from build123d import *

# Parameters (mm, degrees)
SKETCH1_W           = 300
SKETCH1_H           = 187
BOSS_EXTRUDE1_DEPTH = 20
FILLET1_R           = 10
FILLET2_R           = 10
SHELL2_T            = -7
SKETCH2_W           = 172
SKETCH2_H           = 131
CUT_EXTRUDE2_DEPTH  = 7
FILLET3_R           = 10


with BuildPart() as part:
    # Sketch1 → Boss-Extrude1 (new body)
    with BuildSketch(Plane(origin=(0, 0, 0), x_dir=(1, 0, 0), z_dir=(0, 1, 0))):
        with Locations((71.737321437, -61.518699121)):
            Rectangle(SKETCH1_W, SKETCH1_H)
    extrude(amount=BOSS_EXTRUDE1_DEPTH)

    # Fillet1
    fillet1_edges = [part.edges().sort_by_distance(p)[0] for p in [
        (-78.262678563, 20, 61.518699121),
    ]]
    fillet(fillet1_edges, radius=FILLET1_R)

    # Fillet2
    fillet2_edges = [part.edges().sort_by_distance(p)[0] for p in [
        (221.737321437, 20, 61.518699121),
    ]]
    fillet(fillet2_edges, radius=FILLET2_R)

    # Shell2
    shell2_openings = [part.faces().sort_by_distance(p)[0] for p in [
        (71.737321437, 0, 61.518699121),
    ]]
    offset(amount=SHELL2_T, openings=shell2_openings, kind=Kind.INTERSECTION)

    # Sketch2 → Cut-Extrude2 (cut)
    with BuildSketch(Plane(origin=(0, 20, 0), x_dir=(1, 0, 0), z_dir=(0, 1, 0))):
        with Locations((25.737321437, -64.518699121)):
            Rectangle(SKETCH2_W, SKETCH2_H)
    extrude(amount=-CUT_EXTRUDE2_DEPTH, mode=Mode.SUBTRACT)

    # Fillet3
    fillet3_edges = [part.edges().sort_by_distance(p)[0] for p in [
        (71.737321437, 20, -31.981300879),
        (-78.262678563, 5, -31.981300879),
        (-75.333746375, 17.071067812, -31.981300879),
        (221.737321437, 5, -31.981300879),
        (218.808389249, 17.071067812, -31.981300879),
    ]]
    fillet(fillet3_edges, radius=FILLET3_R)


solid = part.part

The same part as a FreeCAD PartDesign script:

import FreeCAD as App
import Part
import Sketcher

V = App.Vector
Q = App.Units.Quantity


def edges_at(feature, points):
    """Names of the edges that pass closest to the given points."""
    edges = feature.Shape.Edges
    near = lambda p: min(range(len(edges)), key=lambda i: edges[i].distToShape(Part.Vertex(*p))[0])
    return sorted({f"Edge{near(p) + 1}" for p in points})


def faces_at(feature, points):
    """Names of the faces that lie closest to the given points."""
    faces = feature.Shape.Faces
    near = lambda p: min(range(len(faces)), key=lambda i: faces[i].distToShape(Part.Vertex(*p))[0])
    return sorted({f"Face{near(p) + 1}" for p in points})

doc = App.newDocument("Part")
body = doc.addObject("PartDesign::Body", "Body")

sketch1 = doc.addObject("Sketcher::SketchObject", "Sketch")
body.addObject(sketch1)
sketch1.AttachmentSupport = (doc.XZ_Plane, [""])
sketch1.MapMode = "FlatFace"
sketch1.addGeometry([
    Part.LineSegment(V(-78, -32, 0), V(-78, 155, 0)),
    Part.LineSegment(V(-78, 155, 0), V(222, 155, 0)),
    Part.LineSegment(V(222, 155, 0), V(222, -32, 0)),
    Part.LineSegment(V(222, -32, 0), V(-78, -32, 0)),
], False)
sketch1.addConstraint([
    Sketcher.Constraint("Coincident", 0, 2, 1, 1),
    Sketcher.Constraint("Coincident", 1, 2, 2, 1),
    Sketcher.Constraint("Coincident", 2, 2, 3, 1),
    Sketcher.Constraint("Coincident", 3, 2, 0, 1),
    Sketcher.Constraint("Vertical", 0),
    Sketcher.Constraint("Horizontal", 1),
    Sketcher.Constraint("Vertical", 2),
    Sketcher.Constraint("Horizontal", 3),
    Sketcher.Constraint("DistanceX", 1, 1, 1, 2, Q("300 mm")),
    Sketcher.Constraint("DistanceY", 0, 1, 0, 2, Q("187 mm")),
    Sketcher.Constraint("DistanceY", -1, 1, 0, 2, Q("155.018699 mm")),
    Sketcher.Constraint("DistanceX", 0, 2, -1, 1, Q("78.262679 mm")),
])
pad1 = doc.addObject("PartDesign::Pad", "Pad")
body.addObject(pad1)
pad1.Profile = sketch1
pad1.Length = 20
pad1.Reversed = True
doc.recompute()

fillet = doc.addObject("PartDesign::Fillet", "Fillet")
body.addObject(fillet)
fillet.Base = (pad1, edges_at(pad1, [(-78.263, 20, 61.519)]))
fillet.Radius = 10
doc.recompute()

fillet2 = doc.addObject("PartDesign::Fillet", "Fillet001")
body.addObject(fillet2)
fillet2.Base = (fillet, edges_at(fillet, [(221.737, 20, 61.519)]))
fillet2.Radius = 10
doc.recompute()

thickness = doc.addObject("PartDesign::Thickness", "Thickness")
body.addObject(thickness)
thickness.Base = (fillet2, faces_at(fillet2, [(71.737, 0, 61.519)]))
thickness.Value = 7
thickness.Reversed = True
thickness.Join = "Intersection"

sketch2 = doc.addObject("Sketcher::SketchObject", "Sketch001")
body.addObject(sketch2)
sketch2.AttachmentSupport = (doc.XZ_Plane, [""])
sketch2.MapMode = "FlatFace"
sketch2.AttachmentOffset = App.Placement(V(0, 0, -20), App.Rotation())
sketch2.addGeometry([
    Part.LineSegment(V(-60, -1, 0), V(-60, 130, 0)),
    Part.LineSegment(V(-60, 130, 0), V(112, 130, 0)),
    Part.LineSegment(V(112, 130, 0), V(112, -1, 0)),
    Part.LineSegment(V(112, -1, 0), V(-60, -1, 0)),
], False)
sketch2.addConstraint([
    Sketcher.Constraint("Coincident", 0, 2, 1, 1),
    Sketcher.Constraint("Coincident", 1, 2, 2, 1),
    Sketcher.Constraint("Coincident", 2, 2, 3, 1),
    Sketcher.Constraint("Coincident", 3, 2, 0, 1),
    Sketcher.Constraint("Vertical", 0),
    Sketcher.Constraint("Horizontal", 1),
    Sketcher.Constraint("Vertical", 2),
    Sketcher.Constraint("Horizontal", 3),
    Sketcher.Constraint("DistanceX", 1, 1, 1, 2, Q("172 mm")),
    Sketcher.Constraint("DistanceY", 0, 1, 0, 2, Q("131 mm")),
    Sketcher.Constraint("DistanceY", -1, 1, 0, 2, Q("130.018699 mm")),
    Sketcher.Constraint("DistanceX", 0, 2, -1, 1, Q("60.262679 mm")),
])
pocket1 = doc.addObject("PartDesign::Pocket", "Pocket")
body.addObject(pocket1)
pocket1.Profile = sketch2
pocket1.Length = 7
pocket1.Reversed = True
doc.recompute()

fillet3 = doc.addObject("PartDesign::Fillet", "Fillet002")
body.addObject(fillet3)
fillet3.Base = (pocket1, edges_at(pocket1, [
    (71.737, 20, -31.981),
    (-78.263, 5, -31.981),
    (-75.334, 17.071, -31.981),
    (221.737, 5, -31.981),
    (218.808, 17.071, -31.981),
]))
fillet3.Radius = 10

doc.recompute()
